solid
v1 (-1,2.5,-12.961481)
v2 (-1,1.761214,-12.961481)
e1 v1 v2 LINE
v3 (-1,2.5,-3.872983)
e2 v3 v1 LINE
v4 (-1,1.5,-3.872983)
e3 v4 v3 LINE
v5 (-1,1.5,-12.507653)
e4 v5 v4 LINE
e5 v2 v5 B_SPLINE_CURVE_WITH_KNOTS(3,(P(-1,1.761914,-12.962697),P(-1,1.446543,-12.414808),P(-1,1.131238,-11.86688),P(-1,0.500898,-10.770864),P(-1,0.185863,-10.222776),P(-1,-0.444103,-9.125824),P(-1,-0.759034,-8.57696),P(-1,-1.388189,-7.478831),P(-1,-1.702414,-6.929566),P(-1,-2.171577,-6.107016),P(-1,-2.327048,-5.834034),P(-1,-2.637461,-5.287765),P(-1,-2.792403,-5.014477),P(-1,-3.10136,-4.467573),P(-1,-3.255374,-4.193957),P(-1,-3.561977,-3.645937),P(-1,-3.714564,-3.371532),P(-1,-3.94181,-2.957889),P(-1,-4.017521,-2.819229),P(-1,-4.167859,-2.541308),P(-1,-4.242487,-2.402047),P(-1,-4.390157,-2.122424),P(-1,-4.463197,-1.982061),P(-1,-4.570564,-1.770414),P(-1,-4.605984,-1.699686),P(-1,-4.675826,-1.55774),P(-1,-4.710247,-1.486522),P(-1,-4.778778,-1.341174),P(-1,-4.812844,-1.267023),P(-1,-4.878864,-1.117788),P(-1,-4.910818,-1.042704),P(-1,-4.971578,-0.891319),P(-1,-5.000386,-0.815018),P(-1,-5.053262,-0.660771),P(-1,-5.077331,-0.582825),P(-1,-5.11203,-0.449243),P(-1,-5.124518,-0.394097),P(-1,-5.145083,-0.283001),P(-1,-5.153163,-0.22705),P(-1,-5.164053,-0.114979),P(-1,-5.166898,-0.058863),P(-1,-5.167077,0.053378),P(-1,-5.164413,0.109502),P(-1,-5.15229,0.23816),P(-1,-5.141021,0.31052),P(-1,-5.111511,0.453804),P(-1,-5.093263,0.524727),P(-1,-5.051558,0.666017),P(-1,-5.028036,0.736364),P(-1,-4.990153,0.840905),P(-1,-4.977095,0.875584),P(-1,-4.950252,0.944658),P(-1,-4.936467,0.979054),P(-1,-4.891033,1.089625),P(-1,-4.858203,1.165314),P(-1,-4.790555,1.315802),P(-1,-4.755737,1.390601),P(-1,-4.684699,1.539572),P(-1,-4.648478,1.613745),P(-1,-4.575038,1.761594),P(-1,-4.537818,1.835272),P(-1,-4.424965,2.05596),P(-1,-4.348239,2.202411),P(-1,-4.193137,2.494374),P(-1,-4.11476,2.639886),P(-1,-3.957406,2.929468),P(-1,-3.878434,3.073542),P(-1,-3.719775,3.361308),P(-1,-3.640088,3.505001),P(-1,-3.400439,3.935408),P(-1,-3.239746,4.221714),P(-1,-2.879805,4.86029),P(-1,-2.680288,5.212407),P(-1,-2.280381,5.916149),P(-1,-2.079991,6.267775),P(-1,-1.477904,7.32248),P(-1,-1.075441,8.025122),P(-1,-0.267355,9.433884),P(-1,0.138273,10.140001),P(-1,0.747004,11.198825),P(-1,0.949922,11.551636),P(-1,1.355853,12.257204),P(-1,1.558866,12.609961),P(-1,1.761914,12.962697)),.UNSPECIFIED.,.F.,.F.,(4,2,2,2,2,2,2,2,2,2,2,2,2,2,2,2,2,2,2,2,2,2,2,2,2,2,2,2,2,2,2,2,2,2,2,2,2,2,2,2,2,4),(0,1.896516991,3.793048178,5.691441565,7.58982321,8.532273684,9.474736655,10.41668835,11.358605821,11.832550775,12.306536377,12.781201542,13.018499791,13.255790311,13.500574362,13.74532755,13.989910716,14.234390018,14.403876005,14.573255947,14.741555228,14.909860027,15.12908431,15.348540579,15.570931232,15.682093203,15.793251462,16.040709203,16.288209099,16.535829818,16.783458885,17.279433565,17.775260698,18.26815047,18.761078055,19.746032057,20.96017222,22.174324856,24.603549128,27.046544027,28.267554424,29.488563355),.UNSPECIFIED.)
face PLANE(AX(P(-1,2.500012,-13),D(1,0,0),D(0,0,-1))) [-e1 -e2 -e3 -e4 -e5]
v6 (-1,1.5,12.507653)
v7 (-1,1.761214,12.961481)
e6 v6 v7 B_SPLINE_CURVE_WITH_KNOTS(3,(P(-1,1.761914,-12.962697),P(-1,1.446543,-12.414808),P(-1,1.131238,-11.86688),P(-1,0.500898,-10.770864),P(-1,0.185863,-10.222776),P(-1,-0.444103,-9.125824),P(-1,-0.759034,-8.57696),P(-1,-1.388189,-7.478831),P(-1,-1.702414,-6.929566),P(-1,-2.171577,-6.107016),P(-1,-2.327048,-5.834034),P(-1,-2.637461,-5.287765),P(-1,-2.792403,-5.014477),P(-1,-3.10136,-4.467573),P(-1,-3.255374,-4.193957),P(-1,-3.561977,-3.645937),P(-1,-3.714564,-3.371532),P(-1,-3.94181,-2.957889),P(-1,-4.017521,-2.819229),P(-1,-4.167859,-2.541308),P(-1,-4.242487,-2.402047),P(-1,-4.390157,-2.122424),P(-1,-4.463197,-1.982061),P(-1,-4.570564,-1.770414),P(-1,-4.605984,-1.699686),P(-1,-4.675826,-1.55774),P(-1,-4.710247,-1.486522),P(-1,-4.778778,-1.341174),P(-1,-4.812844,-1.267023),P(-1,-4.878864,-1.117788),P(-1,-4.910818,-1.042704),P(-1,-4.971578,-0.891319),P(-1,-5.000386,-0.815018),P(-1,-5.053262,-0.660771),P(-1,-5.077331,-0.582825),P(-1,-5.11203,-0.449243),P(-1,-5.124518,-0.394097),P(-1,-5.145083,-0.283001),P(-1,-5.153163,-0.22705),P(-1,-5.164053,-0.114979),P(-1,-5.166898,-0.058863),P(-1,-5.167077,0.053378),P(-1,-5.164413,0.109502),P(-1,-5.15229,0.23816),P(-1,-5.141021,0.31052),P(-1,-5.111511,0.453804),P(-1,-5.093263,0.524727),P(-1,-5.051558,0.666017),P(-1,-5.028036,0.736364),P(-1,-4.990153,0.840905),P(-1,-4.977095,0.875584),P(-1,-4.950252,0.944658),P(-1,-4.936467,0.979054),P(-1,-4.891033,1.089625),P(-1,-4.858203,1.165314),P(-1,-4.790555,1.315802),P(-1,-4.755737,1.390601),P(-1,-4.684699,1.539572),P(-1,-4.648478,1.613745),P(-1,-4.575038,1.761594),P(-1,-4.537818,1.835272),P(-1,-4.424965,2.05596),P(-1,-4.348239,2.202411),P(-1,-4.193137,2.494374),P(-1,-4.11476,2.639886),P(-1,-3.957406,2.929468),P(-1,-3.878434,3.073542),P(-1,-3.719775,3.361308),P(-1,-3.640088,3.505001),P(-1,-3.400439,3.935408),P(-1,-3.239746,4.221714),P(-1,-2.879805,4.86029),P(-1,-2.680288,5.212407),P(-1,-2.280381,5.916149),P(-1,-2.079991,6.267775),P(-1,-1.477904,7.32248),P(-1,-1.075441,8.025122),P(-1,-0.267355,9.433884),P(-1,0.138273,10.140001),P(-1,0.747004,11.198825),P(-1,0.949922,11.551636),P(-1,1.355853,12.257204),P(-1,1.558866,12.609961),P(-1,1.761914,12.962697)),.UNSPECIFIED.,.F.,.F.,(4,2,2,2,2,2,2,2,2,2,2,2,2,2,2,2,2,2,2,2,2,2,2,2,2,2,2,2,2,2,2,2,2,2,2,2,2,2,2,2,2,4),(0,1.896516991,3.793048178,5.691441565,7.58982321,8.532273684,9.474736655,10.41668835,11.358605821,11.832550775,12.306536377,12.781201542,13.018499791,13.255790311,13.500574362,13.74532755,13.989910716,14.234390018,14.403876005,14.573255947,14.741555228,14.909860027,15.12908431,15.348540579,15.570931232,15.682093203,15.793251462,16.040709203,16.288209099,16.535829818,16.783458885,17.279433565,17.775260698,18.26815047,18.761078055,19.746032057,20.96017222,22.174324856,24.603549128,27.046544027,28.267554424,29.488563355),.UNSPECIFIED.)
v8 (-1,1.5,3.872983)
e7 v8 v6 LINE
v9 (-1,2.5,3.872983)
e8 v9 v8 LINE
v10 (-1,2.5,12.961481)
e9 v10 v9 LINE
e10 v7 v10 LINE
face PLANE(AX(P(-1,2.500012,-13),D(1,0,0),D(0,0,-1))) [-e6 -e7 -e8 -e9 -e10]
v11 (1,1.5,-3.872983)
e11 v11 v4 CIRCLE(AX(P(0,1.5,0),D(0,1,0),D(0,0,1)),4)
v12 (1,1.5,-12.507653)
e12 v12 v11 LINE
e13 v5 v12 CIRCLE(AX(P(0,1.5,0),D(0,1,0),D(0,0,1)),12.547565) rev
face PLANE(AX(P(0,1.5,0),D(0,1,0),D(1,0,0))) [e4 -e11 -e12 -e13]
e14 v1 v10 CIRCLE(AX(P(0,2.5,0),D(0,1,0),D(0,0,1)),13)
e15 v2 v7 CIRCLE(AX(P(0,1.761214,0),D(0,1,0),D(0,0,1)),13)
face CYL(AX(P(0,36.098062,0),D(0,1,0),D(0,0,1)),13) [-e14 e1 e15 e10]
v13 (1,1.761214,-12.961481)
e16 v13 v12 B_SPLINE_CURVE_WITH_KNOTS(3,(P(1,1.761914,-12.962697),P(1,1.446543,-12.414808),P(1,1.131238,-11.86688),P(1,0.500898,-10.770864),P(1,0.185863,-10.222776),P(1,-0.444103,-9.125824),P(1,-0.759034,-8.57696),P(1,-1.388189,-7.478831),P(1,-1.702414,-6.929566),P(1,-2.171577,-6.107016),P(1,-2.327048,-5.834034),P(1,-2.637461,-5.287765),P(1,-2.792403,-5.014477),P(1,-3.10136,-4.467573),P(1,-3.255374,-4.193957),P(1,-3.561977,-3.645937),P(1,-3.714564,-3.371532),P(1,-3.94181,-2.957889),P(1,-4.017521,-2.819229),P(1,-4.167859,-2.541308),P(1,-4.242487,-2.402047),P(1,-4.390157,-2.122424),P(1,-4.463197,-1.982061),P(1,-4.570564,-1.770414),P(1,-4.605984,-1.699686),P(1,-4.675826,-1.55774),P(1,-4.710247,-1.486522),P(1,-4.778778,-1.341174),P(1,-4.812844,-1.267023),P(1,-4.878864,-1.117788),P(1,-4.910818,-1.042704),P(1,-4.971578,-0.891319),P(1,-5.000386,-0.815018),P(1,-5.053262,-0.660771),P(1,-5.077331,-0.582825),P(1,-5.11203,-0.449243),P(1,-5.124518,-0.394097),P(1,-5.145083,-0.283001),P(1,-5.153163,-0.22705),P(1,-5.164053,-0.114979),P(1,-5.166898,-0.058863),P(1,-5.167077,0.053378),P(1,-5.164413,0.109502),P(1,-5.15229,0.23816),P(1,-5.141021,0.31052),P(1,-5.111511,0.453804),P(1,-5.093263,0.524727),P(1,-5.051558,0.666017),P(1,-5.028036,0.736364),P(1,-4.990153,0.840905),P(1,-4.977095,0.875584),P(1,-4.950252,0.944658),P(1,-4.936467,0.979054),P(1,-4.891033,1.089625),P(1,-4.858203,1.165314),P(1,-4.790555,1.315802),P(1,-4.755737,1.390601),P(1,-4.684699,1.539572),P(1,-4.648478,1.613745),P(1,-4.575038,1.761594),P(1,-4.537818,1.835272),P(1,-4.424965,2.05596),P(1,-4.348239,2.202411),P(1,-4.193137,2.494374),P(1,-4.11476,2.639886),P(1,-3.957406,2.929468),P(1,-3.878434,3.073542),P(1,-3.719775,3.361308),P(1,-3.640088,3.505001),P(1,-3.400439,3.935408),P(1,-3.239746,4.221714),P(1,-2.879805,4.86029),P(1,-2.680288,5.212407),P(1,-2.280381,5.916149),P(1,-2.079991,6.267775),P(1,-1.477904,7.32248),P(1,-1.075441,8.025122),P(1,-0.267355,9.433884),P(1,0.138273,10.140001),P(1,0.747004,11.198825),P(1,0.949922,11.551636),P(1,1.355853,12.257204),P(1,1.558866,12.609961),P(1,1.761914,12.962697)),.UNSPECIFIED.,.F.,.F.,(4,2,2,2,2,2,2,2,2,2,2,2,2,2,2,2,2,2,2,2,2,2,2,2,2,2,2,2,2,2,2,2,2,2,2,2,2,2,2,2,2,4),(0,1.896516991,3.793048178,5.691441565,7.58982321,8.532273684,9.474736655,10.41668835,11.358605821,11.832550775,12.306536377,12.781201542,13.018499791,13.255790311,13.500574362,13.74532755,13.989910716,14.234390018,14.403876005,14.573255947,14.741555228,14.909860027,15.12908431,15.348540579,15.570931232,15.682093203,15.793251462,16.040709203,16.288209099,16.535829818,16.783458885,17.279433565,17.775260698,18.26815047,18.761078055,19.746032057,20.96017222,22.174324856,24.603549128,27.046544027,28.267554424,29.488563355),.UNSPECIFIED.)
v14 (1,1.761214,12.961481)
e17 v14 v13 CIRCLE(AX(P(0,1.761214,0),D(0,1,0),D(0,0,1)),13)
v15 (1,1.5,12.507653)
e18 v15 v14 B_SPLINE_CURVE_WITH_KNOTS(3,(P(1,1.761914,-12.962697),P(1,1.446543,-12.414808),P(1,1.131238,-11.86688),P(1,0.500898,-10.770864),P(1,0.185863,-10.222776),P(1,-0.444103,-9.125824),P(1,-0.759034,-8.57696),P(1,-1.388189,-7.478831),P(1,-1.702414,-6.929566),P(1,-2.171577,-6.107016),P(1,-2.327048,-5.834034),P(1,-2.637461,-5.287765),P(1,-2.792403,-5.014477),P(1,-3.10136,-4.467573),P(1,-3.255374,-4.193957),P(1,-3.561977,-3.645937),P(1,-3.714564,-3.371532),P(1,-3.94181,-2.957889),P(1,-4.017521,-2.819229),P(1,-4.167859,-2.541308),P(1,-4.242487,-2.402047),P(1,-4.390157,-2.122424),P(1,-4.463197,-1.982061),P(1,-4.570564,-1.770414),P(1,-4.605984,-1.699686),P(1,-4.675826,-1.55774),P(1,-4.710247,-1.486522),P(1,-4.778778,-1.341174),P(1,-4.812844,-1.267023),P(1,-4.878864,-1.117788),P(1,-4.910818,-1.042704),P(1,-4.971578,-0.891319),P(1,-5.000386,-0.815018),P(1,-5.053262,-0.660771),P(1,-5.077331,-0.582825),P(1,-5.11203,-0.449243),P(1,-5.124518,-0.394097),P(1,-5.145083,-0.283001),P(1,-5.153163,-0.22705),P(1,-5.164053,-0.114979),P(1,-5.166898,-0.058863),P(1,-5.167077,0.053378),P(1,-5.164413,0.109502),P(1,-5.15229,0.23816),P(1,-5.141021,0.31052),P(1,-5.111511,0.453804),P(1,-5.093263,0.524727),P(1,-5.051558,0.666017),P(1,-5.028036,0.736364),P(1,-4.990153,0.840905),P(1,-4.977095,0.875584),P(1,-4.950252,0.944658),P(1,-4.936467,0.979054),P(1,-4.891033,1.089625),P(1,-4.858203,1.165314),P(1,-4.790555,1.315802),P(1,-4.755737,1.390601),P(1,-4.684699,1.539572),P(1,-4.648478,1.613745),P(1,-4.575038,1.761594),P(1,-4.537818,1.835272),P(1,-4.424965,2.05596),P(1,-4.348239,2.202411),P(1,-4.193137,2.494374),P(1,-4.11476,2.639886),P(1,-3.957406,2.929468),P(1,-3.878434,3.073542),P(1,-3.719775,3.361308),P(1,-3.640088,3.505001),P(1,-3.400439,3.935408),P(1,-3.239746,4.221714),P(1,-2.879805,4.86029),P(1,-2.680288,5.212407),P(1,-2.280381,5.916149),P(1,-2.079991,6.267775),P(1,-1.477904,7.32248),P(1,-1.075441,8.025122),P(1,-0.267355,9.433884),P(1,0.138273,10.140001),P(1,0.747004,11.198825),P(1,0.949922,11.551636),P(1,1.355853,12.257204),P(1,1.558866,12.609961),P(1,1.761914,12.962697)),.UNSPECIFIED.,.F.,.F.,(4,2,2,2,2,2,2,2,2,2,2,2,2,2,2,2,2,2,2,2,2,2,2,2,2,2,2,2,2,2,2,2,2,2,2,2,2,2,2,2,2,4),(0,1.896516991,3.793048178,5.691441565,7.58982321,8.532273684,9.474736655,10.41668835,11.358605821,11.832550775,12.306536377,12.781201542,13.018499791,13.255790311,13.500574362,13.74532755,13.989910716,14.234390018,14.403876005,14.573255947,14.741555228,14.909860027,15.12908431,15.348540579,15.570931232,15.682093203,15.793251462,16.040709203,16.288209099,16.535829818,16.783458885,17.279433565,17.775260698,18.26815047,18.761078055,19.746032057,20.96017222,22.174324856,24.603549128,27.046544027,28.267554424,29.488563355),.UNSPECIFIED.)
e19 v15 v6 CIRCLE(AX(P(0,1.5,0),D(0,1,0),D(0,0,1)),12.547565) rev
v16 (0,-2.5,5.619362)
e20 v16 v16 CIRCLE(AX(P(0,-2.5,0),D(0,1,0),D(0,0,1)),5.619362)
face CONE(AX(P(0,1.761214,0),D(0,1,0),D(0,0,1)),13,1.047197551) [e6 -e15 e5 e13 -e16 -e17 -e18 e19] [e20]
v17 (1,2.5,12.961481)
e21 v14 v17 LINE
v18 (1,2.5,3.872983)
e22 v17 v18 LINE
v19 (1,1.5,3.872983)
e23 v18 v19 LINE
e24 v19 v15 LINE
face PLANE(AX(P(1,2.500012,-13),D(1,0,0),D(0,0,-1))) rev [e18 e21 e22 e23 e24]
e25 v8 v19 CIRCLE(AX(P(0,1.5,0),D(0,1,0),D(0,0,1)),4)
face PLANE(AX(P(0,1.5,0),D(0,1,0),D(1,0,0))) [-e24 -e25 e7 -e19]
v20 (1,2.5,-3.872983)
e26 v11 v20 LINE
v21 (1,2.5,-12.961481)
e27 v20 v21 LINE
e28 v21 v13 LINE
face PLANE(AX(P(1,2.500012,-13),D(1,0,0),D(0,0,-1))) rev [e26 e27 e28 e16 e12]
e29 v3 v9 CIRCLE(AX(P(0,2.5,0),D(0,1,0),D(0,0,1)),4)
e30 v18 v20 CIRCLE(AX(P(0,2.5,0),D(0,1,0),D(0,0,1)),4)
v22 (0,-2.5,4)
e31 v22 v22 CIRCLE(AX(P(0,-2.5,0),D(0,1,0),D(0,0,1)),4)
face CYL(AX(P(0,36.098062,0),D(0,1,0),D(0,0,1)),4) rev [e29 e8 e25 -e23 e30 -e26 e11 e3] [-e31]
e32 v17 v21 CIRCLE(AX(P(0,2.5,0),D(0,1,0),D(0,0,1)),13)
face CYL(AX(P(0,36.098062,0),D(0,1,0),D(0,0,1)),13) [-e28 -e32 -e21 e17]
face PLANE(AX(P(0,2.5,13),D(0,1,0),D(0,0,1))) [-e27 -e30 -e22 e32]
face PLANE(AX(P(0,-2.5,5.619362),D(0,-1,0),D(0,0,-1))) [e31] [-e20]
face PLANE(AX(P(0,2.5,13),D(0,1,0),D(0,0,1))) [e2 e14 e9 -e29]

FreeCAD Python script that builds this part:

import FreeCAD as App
import Part
import Sketcher
from FreeCAD import Vector
Q = App.Units.Quantity

doc = App.newDocument("Part")
params = doc.addObject("Spreadsheet::Sheet", "Params")
for row, (alias, value) in enumerate([
    ("sketch1_width", "5 mm"),
    ("sketch1_height", "9 mm"),
    ("revolution_angle", "360 deg"),
    ("sketch2_width", "2 mm"),
    ("sketch2_height", "26 mm"),
    ("pocket1_length", "20.052559 mm"),
    ("pocket1_length2", "1 mm"),
], start=1):
    params.set(f"A{row}", alias)
    params.set(f"B{row}", "=" + value)
    params.setAlias(f"B{row}", alias)

body = doc.addObject("PartDesign::Body", "Body")

sketch1 = doc.addObject("Sketcher::SketchObject", "Sketch")
body.addObject(sketch1)
sketch1.AttachmentSupport = (doc.YZ_Plane, [""])
sketch1.MapMode = "FlatFace"
sketch1.addGeometry([
    Part.LineSegment(Vector(1.8, 13, 0), Vector(-2.5, 5.6, 0)),
    Part.LineSegment(Vector(-2.5, 5.6, 0), Vector(-2.5, 4, 0)),
    Part.LineSegment(Vector(-2.5, 4, 0), Vector(2.5, 4, 0)),
    Part.LineSegment(Vector(2.5, 4, 0), Vector(2.5, 13, 0)),
    Part.LineSegment(Vector(2.5, 13, 0), Vector(1.8, 13, 0)),
], False)
sketch1.addConstraint([
    Sketcher.Constraint("Coincident", 0, 2, 1, 1),
    Sketcher.Constraint("Coincident", 1, 2, 2, 1),
    Sketcher.Constraint("Coincident", 2, 2, 3, 1),
    Sketcher.Constraint("Coincident", 3, 2, 4, 1),
    Sketcher.Constraint("Coincident", 4, 2, 0, 1),
    Sketcher.Constraint("Vertical", 1),
    Sketcher.Constraint("Horizontal", 2),
    Sketcher.Constraint("Vertical", 3),
    Sketcher.Constraint("Horizontal", 4),
    Sketcher.Constraint("DistanceX", 2, 1, 2, 2, 5.0),
    Sketcher.Constraint("DistanceY", 3, 1, 3, 2, 9.0),
    Sketcher.Constraint("Angle", 0, Q("-120 deg")),
    Sketcher.Constraint("DistanceY", -1, 1, 1, 2, 4.0),
    Sketcher.Constraint("DistanceX", 0, 2, -1, 1, 2.5),
    Sketcher.Constraint("DistanceY", 1, 2, 1, 1, 1.619362),
])
sketch1.setExpression("Constraints[9]", "Params.sketch1_width")
sketch1.setExpression("Constraints[10]", "Params.sketch1_height")
revolution = doc.addObject("PartDesign::Revolution", "Revolution")
body.addObject(revolution)
revolution.Profile = sketch1
revolution.ReferenceAxis = (sketch1, ["H_Axis"])
revolution.setExpression("Angle", "Params.revolution_angle")

sketch2 = doc.addObject("Sketcher::SketchObject", "Sketch001")
body.addObject(sketch2)
sketch2.AttachmentSupport = (doc.XZ_Plane, [""])
sketch2.MapMode = "FlatFace"
sketch2.AttachmentOffset = App.Placement(Vector(0, 0, -2.5), App.Rotation())
sketch2.addGeometry([
    Part.LineSegment(Vector(-1, -13, 0), Vector(-1, 13, 0)),
    Part.LineSegment(Vector(-1, 13, 0), Vector(1, 13, 0)),
    Part.LineSegment(Vector(1, 13, 0), Vector(1, -13, 0)),
    Part.LineSegment(Vector(1, -13, 0), Vector(-1, -13, 0)),
], False)
sketch2.addConstraint([
    Sketcher.Constraint("Coincident", 0, 2, 1, 1),
    Sketcher.Constraint("Coincident", 1, 2, 2, 1),
    Sketcher.Constraint("Coincident", 2, 2, 3, 1),
    Sketcher.Constraint("Coincident", 3, 2, 0, 1),
    Sketcher.Constraint("Vertical", 0),
    Sketcher.Constraint("Horizontal", 1),
    Sketcher.Constraint("Vertical", 2),
    Sketcher.Constraint("Horizontal", 3),
    Sketcher.Constraint("Symmetric", 0, 2, 2, 2, -1, 1),
    Sketcher.Constraint("DistanceX", 1, 1, 1, 2, 2.0),
    Sketcher.Constraint("DistanceY", 0, 1, 0, 2, 26.0),
])
sketch2.setExpression("Constraints[9]", "Params.sketch2_width")
sketch2.setExpression("Constraints[10]", "Params.sketch2_height")
pocket1 = doc.addObject("PartDesign::Pocket", "Pocket")
body.addObject(pocket1)
pocket1.Profile = sketch2
pocket1.Type = "TwoLengths"
pocket1.setExpression("Length", "Params.pocket1_length")
pocket1.setExpression("Length2", "Params.pocket1_length2")

doc.recompute()
